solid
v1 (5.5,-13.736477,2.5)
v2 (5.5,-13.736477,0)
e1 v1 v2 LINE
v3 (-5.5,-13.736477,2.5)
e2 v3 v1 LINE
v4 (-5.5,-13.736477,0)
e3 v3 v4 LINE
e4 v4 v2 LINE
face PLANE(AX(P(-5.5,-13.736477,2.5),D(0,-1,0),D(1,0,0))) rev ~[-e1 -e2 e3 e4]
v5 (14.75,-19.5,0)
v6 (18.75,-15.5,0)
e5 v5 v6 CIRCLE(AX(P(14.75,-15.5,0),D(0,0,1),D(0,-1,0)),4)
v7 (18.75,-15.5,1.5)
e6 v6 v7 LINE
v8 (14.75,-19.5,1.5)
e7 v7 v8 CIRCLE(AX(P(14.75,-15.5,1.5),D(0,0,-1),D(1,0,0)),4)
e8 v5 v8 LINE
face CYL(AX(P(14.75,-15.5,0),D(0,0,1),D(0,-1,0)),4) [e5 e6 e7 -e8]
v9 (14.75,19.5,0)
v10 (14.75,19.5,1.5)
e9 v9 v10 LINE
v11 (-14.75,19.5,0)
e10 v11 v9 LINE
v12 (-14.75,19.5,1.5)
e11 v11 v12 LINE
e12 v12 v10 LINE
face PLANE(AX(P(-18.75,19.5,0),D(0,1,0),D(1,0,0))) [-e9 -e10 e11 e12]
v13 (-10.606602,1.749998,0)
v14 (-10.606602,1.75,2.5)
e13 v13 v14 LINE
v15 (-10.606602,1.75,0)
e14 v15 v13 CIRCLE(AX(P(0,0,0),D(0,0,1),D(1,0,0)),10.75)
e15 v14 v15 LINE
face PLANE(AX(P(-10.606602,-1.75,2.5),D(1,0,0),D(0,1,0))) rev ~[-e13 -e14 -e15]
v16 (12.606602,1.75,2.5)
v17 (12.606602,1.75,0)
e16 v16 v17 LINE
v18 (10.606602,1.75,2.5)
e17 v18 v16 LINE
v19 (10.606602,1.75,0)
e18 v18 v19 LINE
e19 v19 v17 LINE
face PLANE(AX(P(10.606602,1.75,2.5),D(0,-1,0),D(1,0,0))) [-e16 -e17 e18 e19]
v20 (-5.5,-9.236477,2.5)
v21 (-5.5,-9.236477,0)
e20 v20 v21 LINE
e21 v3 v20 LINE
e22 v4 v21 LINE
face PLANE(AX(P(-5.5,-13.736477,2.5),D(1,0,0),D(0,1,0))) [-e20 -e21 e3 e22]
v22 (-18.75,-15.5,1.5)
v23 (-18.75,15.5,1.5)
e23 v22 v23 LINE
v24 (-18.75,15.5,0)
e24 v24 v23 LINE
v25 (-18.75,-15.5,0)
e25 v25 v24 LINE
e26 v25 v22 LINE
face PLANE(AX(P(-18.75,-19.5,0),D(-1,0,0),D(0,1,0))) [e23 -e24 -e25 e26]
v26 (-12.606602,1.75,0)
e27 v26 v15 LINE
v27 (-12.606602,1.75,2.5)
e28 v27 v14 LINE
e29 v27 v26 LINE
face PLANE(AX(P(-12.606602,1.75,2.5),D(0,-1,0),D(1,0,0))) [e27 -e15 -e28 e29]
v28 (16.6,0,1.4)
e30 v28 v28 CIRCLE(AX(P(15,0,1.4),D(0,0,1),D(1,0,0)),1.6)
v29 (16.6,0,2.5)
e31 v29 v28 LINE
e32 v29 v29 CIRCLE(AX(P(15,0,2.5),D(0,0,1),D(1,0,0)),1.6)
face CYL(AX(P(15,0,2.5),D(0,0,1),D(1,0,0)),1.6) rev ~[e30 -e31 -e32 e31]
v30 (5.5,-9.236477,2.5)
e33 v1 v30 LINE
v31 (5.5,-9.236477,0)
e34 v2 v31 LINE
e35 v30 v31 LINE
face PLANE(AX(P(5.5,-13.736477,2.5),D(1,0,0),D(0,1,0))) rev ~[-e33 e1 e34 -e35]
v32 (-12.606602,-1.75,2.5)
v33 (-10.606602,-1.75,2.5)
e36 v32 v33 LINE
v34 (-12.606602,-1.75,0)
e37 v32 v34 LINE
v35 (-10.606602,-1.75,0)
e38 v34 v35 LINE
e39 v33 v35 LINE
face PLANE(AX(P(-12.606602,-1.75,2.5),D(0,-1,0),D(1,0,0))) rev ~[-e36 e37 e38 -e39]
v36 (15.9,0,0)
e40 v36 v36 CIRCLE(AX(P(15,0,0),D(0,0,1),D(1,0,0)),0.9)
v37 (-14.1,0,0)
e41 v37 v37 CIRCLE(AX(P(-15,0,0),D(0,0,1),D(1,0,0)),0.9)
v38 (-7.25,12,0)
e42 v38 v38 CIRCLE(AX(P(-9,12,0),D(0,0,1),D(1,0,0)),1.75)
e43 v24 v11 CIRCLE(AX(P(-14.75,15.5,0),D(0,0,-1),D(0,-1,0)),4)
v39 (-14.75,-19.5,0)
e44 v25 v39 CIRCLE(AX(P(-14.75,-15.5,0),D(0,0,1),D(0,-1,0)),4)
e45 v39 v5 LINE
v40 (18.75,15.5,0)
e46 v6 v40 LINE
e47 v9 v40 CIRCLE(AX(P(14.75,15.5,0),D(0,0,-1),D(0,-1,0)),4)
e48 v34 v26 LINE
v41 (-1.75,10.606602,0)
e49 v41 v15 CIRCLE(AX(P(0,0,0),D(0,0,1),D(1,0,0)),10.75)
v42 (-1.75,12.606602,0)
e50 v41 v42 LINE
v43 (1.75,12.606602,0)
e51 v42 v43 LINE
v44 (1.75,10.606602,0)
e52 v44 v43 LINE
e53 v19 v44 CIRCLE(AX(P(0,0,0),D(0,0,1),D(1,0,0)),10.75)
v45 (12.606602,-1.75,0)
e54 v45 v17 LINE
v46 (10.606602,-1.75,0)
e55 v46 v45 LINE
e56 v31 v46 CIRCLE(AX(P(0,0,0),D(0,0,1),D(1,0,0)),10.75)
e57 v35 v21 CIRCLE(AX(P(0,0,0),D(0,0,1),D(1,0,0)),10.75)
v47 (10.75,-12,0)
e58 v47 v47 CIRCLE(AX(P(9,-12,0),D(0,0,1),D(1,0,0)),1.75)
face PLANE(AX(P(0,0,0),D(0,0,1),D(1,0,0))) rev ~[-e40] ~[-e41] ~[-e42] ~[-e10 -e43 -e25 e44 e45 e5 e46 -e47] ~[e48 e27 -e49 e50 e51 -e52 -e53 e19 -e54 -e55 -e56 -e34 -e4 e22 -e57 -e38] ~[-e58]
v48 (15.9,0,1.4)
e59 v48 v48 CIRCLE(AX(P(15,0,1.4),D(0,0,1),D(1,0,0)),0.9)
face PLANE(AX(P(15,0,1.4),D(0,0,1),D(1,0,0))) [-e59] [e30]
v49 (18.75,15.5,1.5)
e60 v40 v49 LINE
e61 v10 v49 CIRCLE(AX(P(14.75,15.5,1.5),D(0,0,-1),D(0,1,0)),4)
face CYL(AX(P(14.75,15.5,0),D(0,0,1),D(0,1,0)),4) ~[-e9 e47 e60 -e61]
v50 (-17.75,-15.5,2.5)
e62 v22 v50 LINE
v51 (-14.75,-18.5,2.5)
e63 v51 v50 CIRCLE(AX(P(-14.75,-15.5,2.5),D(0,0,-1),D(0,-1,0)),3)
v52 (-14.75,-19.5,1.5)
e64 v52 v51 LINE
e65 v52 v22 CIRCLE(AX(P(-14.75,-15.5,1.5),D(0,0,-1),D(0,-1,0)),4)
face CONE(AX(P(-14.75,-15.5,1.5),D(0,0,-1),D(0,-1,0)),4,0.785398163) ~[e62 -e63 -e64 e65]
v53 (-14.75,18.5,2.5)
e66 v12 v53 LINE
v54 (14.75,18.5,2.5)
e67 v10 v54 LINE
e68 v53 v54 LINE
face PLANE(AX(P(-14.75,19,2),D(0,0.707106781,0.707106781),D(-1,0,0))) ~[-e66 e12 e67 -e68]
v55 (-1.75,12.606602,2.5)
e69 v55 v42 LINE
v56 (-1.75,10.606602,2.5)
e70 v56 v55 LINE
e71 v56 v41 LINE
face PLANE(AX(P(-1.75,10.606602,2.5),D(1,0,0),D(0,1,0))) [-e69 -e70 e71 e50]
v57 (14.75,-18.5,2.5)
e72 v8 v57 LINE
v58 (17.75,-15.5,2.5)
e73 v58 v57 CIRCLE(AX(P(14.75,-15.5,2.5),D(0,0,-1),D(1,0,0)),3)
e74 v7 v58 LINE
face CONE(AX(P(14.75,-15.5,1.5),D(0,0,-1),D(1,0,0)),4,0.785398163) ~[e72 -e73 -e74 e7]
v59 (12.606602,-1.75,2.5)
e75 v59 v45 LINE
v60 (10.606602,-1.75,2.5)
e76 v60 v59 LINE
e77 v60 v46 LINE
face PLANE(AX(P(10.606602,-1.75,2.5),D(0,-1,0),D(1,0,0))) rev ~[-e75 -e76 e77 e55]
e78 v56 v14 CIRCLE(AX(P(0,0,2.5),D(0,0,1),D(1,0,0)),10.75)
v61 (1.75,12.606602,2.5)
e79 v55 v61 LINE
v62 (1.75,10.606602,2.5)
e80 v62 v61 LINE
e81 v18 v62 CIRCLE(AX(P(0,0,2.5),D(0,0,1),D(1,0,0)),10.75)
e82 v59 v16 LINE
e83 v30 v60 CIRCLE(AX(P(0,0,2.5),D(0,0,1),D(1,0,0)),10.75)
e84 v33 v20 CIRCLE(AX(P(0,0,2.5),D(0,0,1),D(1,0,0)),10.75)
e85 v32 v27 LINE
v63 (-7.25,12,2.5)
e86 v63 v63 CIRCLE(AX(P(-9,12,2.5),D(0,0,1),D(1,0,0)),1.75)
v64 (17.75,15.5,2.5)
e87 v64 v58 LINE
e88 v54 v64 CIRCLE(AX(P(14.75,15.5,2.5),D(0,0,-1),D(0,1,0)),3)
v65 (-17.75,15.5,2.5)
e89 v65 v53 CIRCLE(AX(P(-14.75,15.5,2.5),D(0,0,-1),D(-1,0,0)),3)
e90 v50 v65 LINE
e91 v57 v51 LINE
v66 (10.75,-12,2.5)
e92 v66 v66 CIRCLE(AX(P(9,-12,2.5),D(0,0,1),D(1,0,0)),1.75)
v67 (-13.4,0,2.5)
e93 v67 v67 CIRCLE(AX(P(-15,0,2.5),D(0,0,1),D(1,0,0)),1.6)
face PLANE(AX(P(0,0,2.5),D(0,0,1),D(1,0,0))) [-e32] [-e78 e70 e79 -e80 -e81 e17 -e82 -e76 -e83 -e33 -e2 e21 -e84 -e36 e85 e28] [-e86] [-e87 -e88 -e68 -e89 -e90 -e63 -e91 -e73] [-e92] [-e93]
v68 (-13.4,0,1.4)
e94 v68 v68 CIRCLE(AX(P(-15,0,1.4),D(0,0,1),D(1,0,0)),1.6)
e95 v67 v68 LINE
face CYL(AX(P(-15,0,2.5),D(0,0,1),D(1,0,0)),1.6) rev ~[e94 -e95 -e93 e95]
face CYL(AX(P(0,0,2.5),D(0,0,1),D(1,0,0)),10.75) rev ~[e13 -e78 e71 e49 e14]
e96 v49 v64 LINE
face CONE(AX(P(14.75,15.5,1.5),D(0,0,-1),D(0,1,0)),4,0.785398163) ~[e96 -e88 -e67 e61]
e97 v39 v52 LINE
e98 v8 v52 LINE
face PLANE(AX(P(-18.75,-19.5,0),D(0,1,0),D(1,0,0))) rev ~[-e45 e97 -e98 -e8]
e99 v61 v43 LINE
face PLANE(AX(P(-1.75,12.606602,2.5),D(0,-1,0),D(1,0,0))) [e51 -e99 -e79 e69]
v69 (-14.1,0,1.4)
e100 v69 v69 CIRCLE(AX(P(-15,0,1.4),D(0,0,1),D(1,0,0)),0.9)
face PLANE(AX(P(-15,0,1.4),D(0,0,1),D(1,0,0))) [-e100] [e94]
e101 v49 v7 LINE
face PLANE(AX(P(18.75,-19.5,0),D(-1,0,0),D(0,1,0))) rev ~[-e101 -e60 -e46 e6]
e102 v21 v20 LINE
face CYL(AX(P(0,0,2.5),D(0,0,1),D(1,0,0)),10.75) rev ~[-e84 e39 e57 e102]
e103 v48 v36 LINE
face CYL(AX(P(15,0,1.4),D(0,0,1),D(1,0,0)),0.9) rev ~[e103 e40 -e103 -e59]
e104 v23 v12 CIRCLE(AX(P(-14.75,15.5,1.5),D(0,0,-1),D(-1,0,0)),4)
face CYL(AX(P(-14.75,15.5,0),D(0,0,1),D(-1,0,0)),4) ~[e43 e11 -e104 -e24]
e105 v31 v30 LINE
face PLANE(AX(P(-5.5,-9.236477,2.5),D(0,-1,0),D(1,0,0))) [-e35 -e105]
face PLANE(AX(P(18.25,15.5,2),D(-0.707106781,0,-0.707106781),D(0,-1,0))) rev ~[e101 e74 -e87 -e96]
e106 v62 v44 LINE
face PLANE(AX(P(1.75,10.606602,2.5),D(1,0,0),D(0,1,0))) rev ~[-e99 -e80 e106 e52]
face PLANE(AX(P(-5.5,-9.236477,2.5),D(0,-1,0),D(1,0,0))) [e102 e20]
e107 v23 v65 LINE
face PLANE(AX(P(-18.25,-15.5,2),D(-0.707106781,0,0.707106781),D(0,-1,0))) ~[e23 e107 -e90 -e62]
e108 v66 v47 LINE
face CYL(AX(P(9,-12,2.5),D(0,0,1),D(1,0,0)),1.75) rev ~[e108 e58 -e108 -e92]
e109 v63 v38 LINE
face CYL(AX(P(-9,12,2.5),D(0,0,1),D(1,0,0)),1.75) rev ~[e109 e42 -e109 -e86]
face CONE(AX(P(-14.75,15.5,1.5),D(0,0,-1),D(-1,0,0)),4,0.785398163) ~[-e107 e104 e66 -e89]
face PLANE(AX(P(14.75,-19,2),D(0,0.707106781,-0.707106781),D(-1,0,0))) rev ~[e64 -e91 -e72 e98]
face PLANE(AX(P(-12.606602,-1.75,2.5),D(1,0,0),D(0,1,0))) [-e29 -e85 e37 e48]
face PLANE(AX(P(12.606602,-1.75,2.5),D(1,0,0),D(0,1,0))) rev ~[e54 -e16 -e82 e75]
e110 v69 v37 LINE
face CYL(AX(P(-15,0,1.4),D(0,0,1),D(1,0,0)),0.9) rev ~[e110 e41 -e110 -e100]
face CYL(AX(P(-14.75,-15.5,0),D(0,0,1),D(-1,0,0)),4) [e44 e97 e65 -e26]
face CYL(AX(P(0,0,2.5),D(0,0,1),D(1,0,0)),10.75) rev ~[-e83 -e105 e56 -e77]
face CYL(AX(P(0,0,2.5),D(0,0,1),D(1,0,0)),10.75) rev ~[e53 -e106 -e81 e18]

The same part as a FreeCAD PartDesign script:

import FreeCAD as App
import Part
import Sketcher

V = App.Vector


def edges_at(feature, points):
    """Names of the edges that pass closest to the given points."""
    edges = feature.Shape.Edges
    near = lambda p: min(range(len(edges)), key=lambda i: edges[i].distToShape(Part.Vertex(*p))[0])
    return sorted({f"Edge{near(p) + 1}" for p in points})

doc = App.newDocument("Part")
params = doc.addObject("Spreadsheet::Sheet", "Params")
for row, (alias, value) in enumerate([
    ("sketch1_height", "39 mm"),
    ("sketch1_width", "37.5 mm"),
    ("pad1_length", "2.5 mm"),
    ("sketch2_diameter", "21.5 mm"),
    ("pocket1_length", "5 mm"),
    ("sketch3_diameter", "3.5 mm"),
    ("sketch3_width", "2 mm"),
    ("sketch3_width2", "11 mm"),
    ("sketch3_width3", "3.5 mm"),
    ("sketch3_height", "4.5 mm"),
    ("pocket2_length", "5 mm"),
    ("fillet_radius", "4 mm"),
    ("sketch4_diameter", "3.2 mm"),
    ("pocket3_length", "1.1 mm"),
    ("sketch5_diameter", "1.8 mm"),
    ("pocket4_length", "5 mm"),
    ("chamfer_size", "1 mm"),
], start=1):
    params.set(f"A{row}", alias)
    params.set(f"B{row}", "=" + value)
    params.setAlias(f"B{row}", alias)

body = doc.addObject("PartDesign::Body", "Body")

# Sketch on XY plane
sketch1 = body.newObject("Sketcher::SketchObject", "Sketch")
sketch1.AttachmentSupport = (doc.getObject("XY_Plane"), [""])
sketch1.MapMode = "FlatFace"
sketch1.addGeometry([
    Part.LineSegment(V(-19, 20, 0), V(-19, -20, 0)),
    Part.LineSegment(V(-19, -20, 0), V(19, -20, 0)),
    Part.LineSegment(V(19, -20, 0), V(19, 20, 0)),
    Part.LineSegment(V(19, 20, 0), V(-19, 20, 0)),
], False)
sketch1.addConstraint([
    Sketcher.Constraint("Coincident", 0, 2, 1, 1),
    Sketcher.Constraint("Coincident", 1, 2, 2, 1),
    Sketcher.Constraint("Coincident", 2, 2, 3, 1),
    Sketcher.Constraint("Coincident", 3, 2, 0, 1),
    Sketcher.Constraint("Vertical", 0),
    Sketcher.Constraint("Horizontal", 1),
    Sketcher.Constraint("Vertical", 2),
    Sketcher.Constraint("Horizontal", 3),
    Sketcher.Constraint("Symmetric", 0, 2, 2, 2, -1, 1),
    Sketcher.Constraint("DistanceY", 0, 2, 0, 1, 39.0),
    Sketcher.Constraint("DistanceX", 1, 1, 1, 2, 37.5),
])
sketch1.setExpression("Constraints[9]", "Params.sketch1_height")
sketch1.setExpression("Constraints[10]", "Params.sketch1_width")
pad1 = body.newObject("PartDesign::Pad", "Pad")
pad1.Profile = sketch1
pad1.setExpression("Length", "Params.pad1_length")

# Sketch on XY plane
sketch2 = body.newObject("Sketcher::SketchObject", "Sketch001")
sketch2.AttachmentSupport = (doc.getObject("XY_Plane"), [""])
sketch2.MapMode = "FlatFace"
sketch2.AttachmentOffset = App.Placement(V(0, 0, 2.5), App.Rotation())
sketch2.addGeometry(Part.Circle(V(0, 0, 0), V(0, 0, 1), 11), False)
sketch2.addConstraint([
    Sketcher.Constraint("Coincident", 0, 3, -1, 1),
    Sketcher.Constraint("Diameter", 0, 21.5),
])
sketch2.setExpression("Constraints[1]", "Params.sketch2_diameter")
pocket1 = body.newObject("PartDesign::Pocket", "Pocket")
pocket1.Profile = sketch2
pocket1.setExpression("Length", "Params.pocket1_length")

# Sketch on XY plane
sketch3 = body.newObject("Sketcher::SketchObject", "Sketch002")
sketch3.AttachmentSupport = (doc.getObject("XY_Plane"), [""])
sketch3.MapMode = "FlatFace"
sketch3.AttachmentOffset = App.Placement(V(0, 0, 2.5), App.Rotation())
sketch3.addGeometry([
    Part.Circle(V(-9, 12, 0), V(0, 0, 1), 1.8),  # 0
    Part.Circle(V(9, -12, 0), V(0, 0, 1), 1.8),  # 1
    Part.LineSegment(V(10.6, 1.8, 0), V(10.6, -1.8, 0)),  # 2
    Part.LineSegment(V(10.6, -1.8, 0), V(12.6, -1.8, 0)),  # 3
    Part.LineSegment(V(12.6, -1.8, 0), V(12.6, 1.8, 0)),  # 4
    Part.LineSegment(V(12.6, 1.8, 0), V(10.6, 1.8, 0)),  # 5
    Part.LineSegment(V(-12.6, 1.8, 0), V(-12.6, -1.8, 0)),  # 6
    Part.LineSegment(V(-12.6, -1.8, 0), V(-10.6, -1.8, 0)),  # 7
    Part.LineSegment(V(-10.6, -1.8, 0), V(-10.6, 1.8, 0)),  # 8
    Part.LineSegment(V(-10.6, 1.8, 0), V(-12.6, 1.8, 0)),  # 9
    Part.LineSegment(V(-1.8, 12.6, 0), V(-1.8, 10.6, 0)),  # 10
    Part.LineSegment(V(-1.8, 10.6, 0), V(1.8, 10.6, 0)),  # 11
    Part.LineSegment(V(1.8, 10.6, 0), V(1.8, 12.6, 0)),  # 12
    Part.LineSegment(V(1.8, 12.6, 0), V(-1.8, 12.6, 0)),  # 13
    Part.LineSegment(V(-5.5, -9.2, 0), V(-5.5, -13.7, 0)),  # 14
    Part.LineSegment(V(-5.5, -13.7, 0), V(5.5, -13.7, 0)),  # 15
    Part.LineSegment(V(5.5, -13.7, 0), V(5.5, -9.2, 0)),  # 16
    Part.LineSegment(V(5.5, -9.2, 0), V(-5.5, -9.2, 0)),  # 17
], False)
sketch3.addConstraint([
    Sketcher.Constraint("Coincident", 2, 2, 3, 1),
    Sketcher.Constraint("Coincident", 3, 2, 4, 1),
    Sketcher.Constraint("Coincident", 4, 2, 5, 1),
    Sketcher.Constraint("Coincident", 5, 2, 2, 1),
    Sketcher.Constraint("Coincident", 6, 2, 7, 1),
    Sketcher.Constraint("Coincident", 7, 2, 8, 1),
    Sketcher.Constraint("Coincident", 8, 2, 9, 1),
    Sketcher.Constraint("Coincident", 9, 2, 6, 1),
    Sketcher.Constraint("Coincident", 10, 2, 11, 1),
    Sketcher.Constraint("Coincident", 11, 2, 12, 1),
    Sketcher.Constraint("Coincident", 12, 2, 13, 1),
    Sketcher.Constraint("Coincident", 13, 2, 10, 1),
    Sketcher.Constraint("Coincident", 14, 2, 15, 1),
    Sketcher.Constraint("Coincident", 15, 2, 16, 1),
    Sketcher.Constraint("Coincident", 16, 2, 17, 1),
    Sketcher.Constraint("Coincident", 17, 2, 14, 1),
    Sketcher.Constraint("Vertical", 2),
    Sketcher.Constraint("Horizontal", 3),
    Sketcher.Constraint("Vertical", 4),
    Sketcher.Constraint("Horizontal", 5),
    Sketcher.Constraint("Vertical", 6),
    Sketcher.Constraint("Horizontal", 7),
    Sketcher.Constraint("Vertical", 8),
    Sketcher.Constraint("Horizontal", 9),
    Sketcher.Constraint("Vertical", 10),
    Sketcher.Constraint("Horizontal", 11),
    Sketcher.Constraint("Vertical", 12),
    Sketcher.Constraint("Horizontal", 13),
    Sketcher.Constraint("Vertical", 14),
    Sketcher.Constraint("Horizontal", 15),
    Sketcher.Constraint("Vertical", 16),
    Sketcher.Constraint("Horizontal", 17),
    Sketcher.Constraint("Equal", 0, 1),
    Sketcher.Constraint("Symmetric", 0, 3, 1, 3, -1, 1),
    Sketcher.Constraint("Symmetric", 4, 2, 6, 2, -1, 1),
    Sketcher.Constraint("Symmetric", 2, 2, 8, 2, -1, 1),
    Sketcher.Constraint("Horizontal", 3, 2, 6, 2),
    Sketcher.Constraint("Equal", 13, 2),
    Sketcher.Constraint("Equal", 9, 10),
    Sketcher.Constraint("Diameter", 0, 3.5),
    Sketcher.Constraint("DistanceX", 3, 1, 3, 2, 2.0),
    Sketcher.Constraint("DistanceX", 15, 1, 15, 2, 11.0),
    Sketcher.Constraint("DistanceX", 11, 1, 11, 2, 3.5),
    Sketcher.Constraint("DistanceY", 14, 2, 14, 1, 4.5),
    Sketcher.Constraint("DistanceX", 0, 3, -1, 1, 9.0),
    Sketcher.Constraint("DistanceY", -1, 1, 0, 3, 12.0),
    Sketcher.Constraint("DistanceX", 14, 2, -1, 1, 5.5),
    Sketcher.Constraint("DistanceX", 10, 2, -1, 1, 1.75),
    Sketcher.Constraint("DistanceX", -1, 1, 2, 2, 10.606602),
    Sketcher.Constraint("DistanceY", -1, 1, 10, 2, 10.606602),
    Sketcher.Constraint("DistanceY", 14, 2, -1, 1, 13.736477),
])
sketch3.setExpression("Constraints[39]", "Params.sketch3_diameter")
sketch3.setExpression("Constraints[40]", "Params.sketch3_width")
sketch3.setExpression("Constraints[41]", "Params.sketch3_width2")
sketch3.setExpression("Constraints[42]", "Params.sketch3_width3")
sketch3.setExpression("Constraints[43]", "Params.sketch3_height")
pocket2 = body.newObject("PartDesign::Pocket", "Pocket001")
pocket2.Profile = sketch3
pocket2.setExpression("Length", "Params.pocket2_length")
doc.recompute()

fillet = body.newObject("PartDesign::Fillet", "Fillet")
fillet.Base = (pocket2, edges_at(pocket2, [
    (18.75, -19.5, 1.25),
    (-18.75, -19.5, 1.25),
    (18.75, 19.5, 1.25),
    (-18.75, 19.5, 1.25),
]))
fillet.setExpression("Radius", "Params.fillet_radius")

# Sketch on XY plane
sketch4 = body.newObject("Sketcher::SketchObject", "Sketch003")
sketch4.AttachmentSupport = (doc.getObject("XY_Plane"), [""])
sketch4.MapMode = "FlatFace"
sketch4.AttachmentOffset = App.Placement(V(0, 0, 2.5), App.Rotation())
sketch4.addGeometry([
    Part.Circle(V(-15, 0, 0), V(0, 0, 1), 1.6),
    Part.Circle(V(15, 0, 0), V(0, 0, 1), 1.6),
], False)
sketch4.addConstraint([
    Sketcher.Constraint("Equal", 0, 1),
    Sketcher.Constraint("Symmetric", 0, 3, 1, 3, -1, 1),
    Sketcher.Constraint("PointOnObject", 0, 3, -1),
    Sketcher.Constraint("Diameter", 0, 3.2),
    Sketcher.Constraint("DistanceX", 0, 3, -1, 1, 15.0),
])
sketch4.setExpression("Constraints[3]", "Params.sketch4_diameter")
pocket3 = body.newObject("PartDesign::Pocket", "Pocket002")
pocket3.Profile = sketch4
pocket3.setExpression("Length", "Params.pocket3_length")

# Sketch on XY plane
sketch5 = body.newObject("Sketcher::SketchObject", "Sketch004")
sketch5.AttachmentSupport = (doc.getObject("XY_Plane"), [""])
sketch5.MapMode = "FlatFace"
sketch5.AttachmentOffset = App.Placement(V(0, 0, 1.4), App.Rotation())
sketch5.addGeometry([
    Part.Circle(V(-15, 0, 0), V(0, 0, 1), 0.9),
    Part.Circle(V(15, 0, 0), V(0, 0, 1), 0.9),
], False)
sketch5.addConstraint([
    Sketcher.Constraint("Equal", 0, 1),
    Sketcher.Constraint("Symmetric", 0, 3, 1, 3, -1, 1),
    Sketcher.Constraint("PointOnObject", 0, 3, -1),
    Sketcher.Constraint("Diameter", 0, 1.8),
    Sketcher.Constraint("DistanceX", 0, 3, -1, 1, 15.0),
])
sketch5.setExpression("Constraints[3]", "Params.sketch5_diameter")
pocket4 = body.newObject("PartDesign::Pocket", "Pocket003")
pocket4.Profile = sketch5
pocket4.setExpression("Length", "Params.pocket4_length")
doc.recompute()

chamfer = body.newObject("PartDesign::Chamfer", "Chamfer")
chamfer.Base = (pocket4, edges_at(pocket4, [(-18.75, 0, 2.5)]))
chamfer.setExpression("Size", "Params.chamfer_size")

doc.recompute()
